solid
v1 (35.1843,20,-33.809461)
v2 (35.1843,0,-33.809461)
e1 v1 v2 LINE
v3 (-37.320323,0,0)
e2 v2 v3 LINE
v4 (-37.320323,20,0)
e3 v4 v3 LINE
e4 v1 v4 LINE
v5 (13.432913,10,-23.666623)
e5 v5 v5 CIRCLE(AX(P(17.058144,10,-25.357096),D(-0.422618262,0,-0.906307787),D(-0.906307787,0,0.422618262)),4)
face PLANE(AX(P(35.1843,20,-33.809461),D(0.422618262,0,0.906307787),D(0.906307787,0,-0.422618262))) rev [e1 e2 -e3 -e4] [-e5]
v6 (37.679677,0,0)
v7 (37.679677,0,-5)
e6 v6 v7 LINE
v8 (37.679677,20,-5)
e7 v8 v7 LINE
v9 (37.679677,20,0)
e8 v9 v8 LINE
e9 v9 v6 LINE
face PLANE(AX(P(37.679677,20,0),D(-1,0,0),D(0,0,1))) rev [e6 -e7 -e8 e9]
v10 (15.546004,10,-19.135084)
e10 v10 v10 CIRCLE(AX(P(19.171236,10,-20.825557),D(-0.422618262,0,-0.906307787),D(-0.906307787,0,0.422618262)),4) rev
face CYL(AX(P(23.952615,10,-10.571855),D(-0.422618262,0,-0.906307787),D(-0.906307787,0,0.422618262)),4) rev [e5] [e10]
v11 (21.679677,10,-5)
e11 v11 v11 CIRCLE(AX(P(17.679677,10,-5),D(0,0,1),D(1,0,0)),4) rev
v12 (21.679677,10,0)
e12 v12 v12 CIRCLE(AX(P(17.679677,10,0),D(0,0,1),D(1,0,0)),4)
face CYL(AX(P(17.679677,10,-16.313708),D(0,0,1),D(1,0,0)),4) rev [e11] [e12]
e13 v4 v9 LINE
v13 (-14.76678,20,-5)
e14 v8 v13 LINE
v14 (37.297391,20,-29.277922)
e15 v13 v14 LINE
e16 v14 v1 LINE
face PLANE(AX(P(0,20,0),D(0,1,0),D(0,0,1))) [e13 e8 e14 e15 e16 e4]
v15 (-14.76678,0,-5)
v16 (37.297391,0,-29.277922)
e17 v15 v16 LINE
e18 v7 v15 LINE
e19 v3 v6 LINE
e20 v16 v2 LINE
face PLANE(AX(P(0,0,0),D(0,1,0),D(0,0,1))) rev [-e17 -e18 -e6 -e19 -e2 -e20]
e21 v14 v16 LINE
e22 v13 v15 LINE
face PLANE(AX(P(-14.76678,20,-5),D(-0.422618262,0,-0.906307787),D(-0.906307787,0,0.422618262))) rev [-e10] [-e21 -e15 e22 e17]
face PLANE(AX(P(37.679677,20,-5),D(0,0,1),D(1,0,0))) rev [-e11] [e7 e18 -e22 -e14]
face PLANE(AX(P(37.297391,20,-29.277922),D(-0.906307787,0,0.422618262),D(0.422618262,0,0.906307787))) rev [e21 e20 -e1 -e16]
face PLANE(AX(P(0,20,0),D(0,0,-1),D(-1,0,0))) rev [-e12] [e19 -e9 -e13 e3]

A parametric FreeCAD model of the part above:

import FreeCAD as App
import Part
import Sketcher
Q = App.Units.Quantity


def add_polygon(sketch, points):
    """Adds a closed chain of lines whose ends are joined by coincident constraints."""
    first, n = sketch.GeometryCount, len(points)
    for a, b in zip(points, points[1:] + points[:1]):
        sketch.addGeometry(Part.LineSegment(App.Vector(*a, 0), App.Vector(*b, 0)), False)
    for i in range(n):
        sketch.addConstraint(Sketcher.Constraint("Coincident", first + i, 2, first + (i + 1) % n, 1))

doc = App.newDocument("Part")
body = doc.addObject("PartDesign::Body", "Body")

# Sketch on XZ plane
sketch1 = body.newObject("Sketcher::SketchObject", "Sketch")
sketch1.AttachmentSupport = (doc.getObject("XZ_Plane"), [""])
sketch1.MapMode = "FlatFace"
add_polygon(sketch1, [(37.679677, 0), (37.679677, -5), (-14.76678, -5), (37.297391, -29.277922), (35.1843, -33.809461), (-37.320323, 0)])  # lines 0-5
sketch1.addConstraint(Sketcher.Constraint("Vertical", 0))
sketch1.addConstraint(Sketcher.Constraint("Horizontal", 1))
sketch1.addConstraint(Sketcher.Constraint("Horizontal", 5))
sketch1.addConstraint(Sketcher.Constraint("PointOnObject", 4, 2, -1))
sketch1.addConstraint(Sketcher.Constraint("Perpendicular", 2, 3))
sketch1.addConstraint(Sketcher.Constraint("Perpendicular", 3, 4))
sketch1.addConstraint(Sketcher.Constraint("DistanceX", 5, 1, 5, 2, Q("75 mm")))
sketch1.addConstraint(Sketcher.Constraint("DistanceY", 0, 2, 0, 1, Q("5 mm")))
sketch1.addConstraint(Sketcher.Constraint("Angle", 2, Q("-25 deg")))
sketch1.addConstraint(Sketcher.Constraint("Distance", 3, Q("5 mm")))
sketch1.addConstraint(Sketcher.Constraint("Distance", 4, Q("80 mm")))
sketch1.addConstraint(Sketcher.Constraint("DistanceX", -1, 1, 3, 2, Q("35.1843 mm")))
pad1 = body.newObject("PartDesign::Pad", "Pad")
pad1.Profile = sketch1
pad1.Length = 20
pad1.Reversed = True

# Sketch on an angled plane
sketch2 = body.newObject("Sketcher::SketchObject", "Sketch001")
sketch2.Placement = App.Placement(App.Vector(-6.665641, 0, -14.294513), App.Rotation(App.Vector(-0.906307787, 0, 0.422618262), App.Vector(0, 1, 0), App.Vector(-0.422618262, 0, -0.906307787), "ZXY"))
sketch2.addGeometry(Part.Circle(App.Vector(-26.176301, 10, 0), App.Vector(0, 0, 1), 4), False)
sketch2.addConstraint(Sketcher.Constraint("Diameter", 0, Q("8 mm")))
sketch2.addConstraint(Sketcher.Constraint("DistanceY", -1, 1, 0, 3, Q("10 mm")))
sketch2.addConstraint(Sketcher.Constraint("DistanceX", 0, 3, -1, 1, Q("26.176301 mm")))
pocket1 = body.newObject("PartDesign::Pocket", "Pocket")
pocket1.Profile = sketch2
pocket1.Length = 5

# Sketch on XY plane
sketch3 = body.newObject("Sketcher::SketchObject", "Sketch002")
sketch3.AttachmentSupport = (doc.getObject("XY_Plane"), [""])
sketch3.MapMode = "FlatFace"
sketch3.addGeometry(Part.Circle(App.Vector(17.679677, 10, 0), App.Vector(0, 0, 1), 4), False)
sketch3.addConstraint(Sketcher.Constraint("Diameter", 0, Q("8 mm")))
sketch3.addConstraint(Sketcher.Constraint("DistanceY", -1, 1, 0, 3, Q("10 mm")))
sketch3.addConstraint(Sketcher.Constraint("DistanceX", -1, 1, 0, 3, Q("17.679677 mm")))
pocket2 = body.newObject("PartDesign::Pocket", "Pocket001")
pocket2.Profile = sketch3
pocket2.Length = 5

doc.recompute()
